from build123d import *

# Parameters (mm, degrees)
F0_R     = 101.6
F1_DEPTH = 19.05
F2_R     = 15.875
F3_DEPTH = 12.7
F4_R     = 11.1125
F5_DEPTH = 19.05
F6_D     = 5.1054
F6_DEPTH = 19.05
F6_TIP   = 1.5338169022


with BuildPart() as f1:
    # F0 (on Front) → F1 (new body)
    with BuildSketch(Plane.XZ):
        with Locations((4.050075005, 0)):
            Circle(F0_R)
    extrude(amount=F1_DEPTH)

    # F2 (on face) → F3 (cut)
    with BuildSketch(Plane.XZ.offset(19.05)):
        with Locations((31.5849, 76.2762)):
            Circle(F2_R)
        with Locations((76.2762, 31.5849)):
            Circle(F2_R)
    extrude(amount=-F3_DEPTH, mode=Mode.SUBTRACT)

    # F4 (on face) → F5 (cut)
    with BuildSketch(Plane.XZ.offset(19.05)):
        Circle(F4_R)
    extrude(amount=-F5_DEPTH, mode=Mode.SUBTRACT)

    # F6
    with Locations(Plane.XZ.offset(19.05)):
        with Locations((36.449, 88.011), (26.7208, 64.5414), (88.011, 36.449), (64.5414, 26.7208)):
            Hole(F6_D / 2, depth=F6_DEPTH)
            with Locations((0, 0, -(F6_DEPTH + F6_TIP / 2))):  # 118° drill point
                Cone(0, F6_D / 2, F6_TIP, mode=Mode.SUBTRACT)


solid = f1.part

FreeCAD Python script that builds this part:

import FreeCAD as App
import Part
import Sketcher
Q = App.Units.Quantity

doc = App.newDocument("Part")
body = doc.addObject("PartDesign::Body", "Body")

# Sketch on XZ plane
sketch1 = doc.addObject("Sketcher::SketchObject", "Sketch")
body.addObject(sketch1)
sketch1.AttachmentSupport = (doc.XZ_Plane, [""])
sketch1.MapMode = "FlatFace"
sketch1.addGeometry(Part.Circle(App.Vector(4, 0, 0), App.Vector(0, 0, 1), 102), False)
sketch1.addConstraint([
    Sketcher.Constraint("PointOnObject", 0, 3, -1),
    Sketcher.Constraint("Diameter", 0, Q("8 in")),
    Sketcher.Constraint("DistanceX", -1, 1, 0, 3, Q("4.050075 mm")),
])
pad1 = doc.addObject("PartDesign::Pad", "Pad")
body.addObject(pad1)
pad1.Profile = sketch1
pad1.Length = Q("0.75 in")

# Sketch on XZ plane
sketch2 = doc.addObject("Sketcher::SketchObject", "Sketch001")
body.addObject(sketch2)
sketch2.AttachmentSupport = (doc.XZ_Plane, [""])
sketch2.MapMode = "FlatFace"
sketch2.AttachmentOffset = App.Placement(App.Vector(0, 0, 0.75 * 25.4), App.Rotation())
sketch2.addGeometry([
    Part.Circle(App.Vector(32, 76, 0), App.Vector(0, 0, 1), 16),
    Part.Circle(App.Vector(76, 32, 0), App.Vector(0, 0, 1), 16),
], False)
sketch2.addConstraint([
    Sketcher.Constraint("Equal", 0, 1),
    Sketcher.Constraint("Diameter", 0, Q("1.25 in")),
    Sketcher.Constraint("DistanceY", -1, 1, 0, 3, Q("3.003 in")),
    Sketcher.Constraint("DistanceX", -1, 1, 1, 3, Q("3.003 in")),
    Sketcher.Constraint("DistanceX", -1, 1, 0, 3, Q("1.2435 in")),
    Sketcher.Constraint("DistanceY", -1, 1, 1, 3, Q("1.2435 in")),
])
pocket1 = doc.addObject("PartDesign::Pocket", "Pocket")
body.addObject(pocket1)
pocket1.Profile = sketch2
pocket1.Length = Q("0.5 in")

# Sketch on XZ plane
sketch3 = doc.addObject("Sketcher::SketchObject", "Sketch002")
body.addObject(sketch3)
sketch3.AttachmentSupport = (doc.XZ_Plane, [""])
sketch3.MapMode = "FlatFace"
sketch3.AttachmentOffset = App.Placement(App.Vector(0, 0, 0.75 * 25.4), App.Rotation())
sketch3.addGeometry(Part.Circle(App.Vector(0, 0, 0), App.Vector(0, 0, 1), 11), False)
sketch3.addConstraint([
    Sketcher.Constraint("Coincident", 0, 3, -1, 1),
    Sketcher.Constraint("Diameter", 0, Q("0.875 in")),
])
pocket2 = doc.addObject("PartDesign::Pocket", "Pocket001")
body.addObject(pocket2)
pocket2.Profile = sketch3
pocket2.Length = Q("0.75 in")

# Sketch on XZ plane
sketch4 = doc.addObject("Sketcher::SketchObject", "Sketch003")
body.addObject(sketch4)
sketch4.AttachmentSupport = (doc.XZ_Plane, [""])
sketch4.MapMode = "FlatFace"
sketch4.AttachmentOffset = App.Placement(App.Vector(0, 0, 0.75 * 25.4), App.Rotation())
sketch4.addGeometry([
    Part.Circle(App.Vector(36.4, 88, 0), App.Vector(0, 0, 1), 2.6),
    Part.Circle(App.Vector(26.7, 64.5, 0), App.Vector(0, 0, 1), 2.6),
    Part.Circle(App.Vector(88, 36.4, 0), App.Vector(0, 0, 1), 2.6),
    Part.Circle(App.Vector(64.5, 26.7, 0), App.Vector(0, 0, 1), 2.6),
], False)
sketch4.addConstraint([
    Sketcher.Constraint("Equal", 0, 1),
    Sketcher.Constraint("Equal", 1, 2),
    Sketcher.Constraint("Equal", 2, 3),
    Sketcher.Constraint("Diameter", 0, Q("0.201 in")),
    Sketcher.Constraint("DistanceX", 0, 3, 2, 3, Q("2.03 in")),
    Sketcher.Constraint("DistanceY", 2, 3, 0, 3, Q("2.03 in")),
    Sketcher.Constraint("DistanceX", -1, 1, 0, 3, Q("1.435 in")),
    Sketcher.Constraint("DistanceY", -1, 1, 0, 3, Q("3.465 in")),
    Sketcher.Constraint("DistanceX", -1, 1, 1, 3, Q("1.052 in")),
    Sketcher.Constraint("DistanceY", -1, 1, 1, 3, Q("2.541 in")),
    Sketcher.Constraint("DistanceX", -1, 1, 3, 3, Q("2.541 in")),
    Sketcher.Constraint("DistanceY", -1, 1, 3, 3, Q("1.052 in")),
])
doc.recompute()
hole = doc.addObject("PartDesign::Hole", "Hole")
body.addObject(hole)
hole.Profile = sketch4
hole.ThreadType = "None"
hole.Diameter = Q("0.201 in")
hole.DepthType = "Dimension"
hole.Depth = Q("0.75 in")
hole.DrillPoint = "Angled"
hole.DrillPointAngle = 118

doc.recompute()
